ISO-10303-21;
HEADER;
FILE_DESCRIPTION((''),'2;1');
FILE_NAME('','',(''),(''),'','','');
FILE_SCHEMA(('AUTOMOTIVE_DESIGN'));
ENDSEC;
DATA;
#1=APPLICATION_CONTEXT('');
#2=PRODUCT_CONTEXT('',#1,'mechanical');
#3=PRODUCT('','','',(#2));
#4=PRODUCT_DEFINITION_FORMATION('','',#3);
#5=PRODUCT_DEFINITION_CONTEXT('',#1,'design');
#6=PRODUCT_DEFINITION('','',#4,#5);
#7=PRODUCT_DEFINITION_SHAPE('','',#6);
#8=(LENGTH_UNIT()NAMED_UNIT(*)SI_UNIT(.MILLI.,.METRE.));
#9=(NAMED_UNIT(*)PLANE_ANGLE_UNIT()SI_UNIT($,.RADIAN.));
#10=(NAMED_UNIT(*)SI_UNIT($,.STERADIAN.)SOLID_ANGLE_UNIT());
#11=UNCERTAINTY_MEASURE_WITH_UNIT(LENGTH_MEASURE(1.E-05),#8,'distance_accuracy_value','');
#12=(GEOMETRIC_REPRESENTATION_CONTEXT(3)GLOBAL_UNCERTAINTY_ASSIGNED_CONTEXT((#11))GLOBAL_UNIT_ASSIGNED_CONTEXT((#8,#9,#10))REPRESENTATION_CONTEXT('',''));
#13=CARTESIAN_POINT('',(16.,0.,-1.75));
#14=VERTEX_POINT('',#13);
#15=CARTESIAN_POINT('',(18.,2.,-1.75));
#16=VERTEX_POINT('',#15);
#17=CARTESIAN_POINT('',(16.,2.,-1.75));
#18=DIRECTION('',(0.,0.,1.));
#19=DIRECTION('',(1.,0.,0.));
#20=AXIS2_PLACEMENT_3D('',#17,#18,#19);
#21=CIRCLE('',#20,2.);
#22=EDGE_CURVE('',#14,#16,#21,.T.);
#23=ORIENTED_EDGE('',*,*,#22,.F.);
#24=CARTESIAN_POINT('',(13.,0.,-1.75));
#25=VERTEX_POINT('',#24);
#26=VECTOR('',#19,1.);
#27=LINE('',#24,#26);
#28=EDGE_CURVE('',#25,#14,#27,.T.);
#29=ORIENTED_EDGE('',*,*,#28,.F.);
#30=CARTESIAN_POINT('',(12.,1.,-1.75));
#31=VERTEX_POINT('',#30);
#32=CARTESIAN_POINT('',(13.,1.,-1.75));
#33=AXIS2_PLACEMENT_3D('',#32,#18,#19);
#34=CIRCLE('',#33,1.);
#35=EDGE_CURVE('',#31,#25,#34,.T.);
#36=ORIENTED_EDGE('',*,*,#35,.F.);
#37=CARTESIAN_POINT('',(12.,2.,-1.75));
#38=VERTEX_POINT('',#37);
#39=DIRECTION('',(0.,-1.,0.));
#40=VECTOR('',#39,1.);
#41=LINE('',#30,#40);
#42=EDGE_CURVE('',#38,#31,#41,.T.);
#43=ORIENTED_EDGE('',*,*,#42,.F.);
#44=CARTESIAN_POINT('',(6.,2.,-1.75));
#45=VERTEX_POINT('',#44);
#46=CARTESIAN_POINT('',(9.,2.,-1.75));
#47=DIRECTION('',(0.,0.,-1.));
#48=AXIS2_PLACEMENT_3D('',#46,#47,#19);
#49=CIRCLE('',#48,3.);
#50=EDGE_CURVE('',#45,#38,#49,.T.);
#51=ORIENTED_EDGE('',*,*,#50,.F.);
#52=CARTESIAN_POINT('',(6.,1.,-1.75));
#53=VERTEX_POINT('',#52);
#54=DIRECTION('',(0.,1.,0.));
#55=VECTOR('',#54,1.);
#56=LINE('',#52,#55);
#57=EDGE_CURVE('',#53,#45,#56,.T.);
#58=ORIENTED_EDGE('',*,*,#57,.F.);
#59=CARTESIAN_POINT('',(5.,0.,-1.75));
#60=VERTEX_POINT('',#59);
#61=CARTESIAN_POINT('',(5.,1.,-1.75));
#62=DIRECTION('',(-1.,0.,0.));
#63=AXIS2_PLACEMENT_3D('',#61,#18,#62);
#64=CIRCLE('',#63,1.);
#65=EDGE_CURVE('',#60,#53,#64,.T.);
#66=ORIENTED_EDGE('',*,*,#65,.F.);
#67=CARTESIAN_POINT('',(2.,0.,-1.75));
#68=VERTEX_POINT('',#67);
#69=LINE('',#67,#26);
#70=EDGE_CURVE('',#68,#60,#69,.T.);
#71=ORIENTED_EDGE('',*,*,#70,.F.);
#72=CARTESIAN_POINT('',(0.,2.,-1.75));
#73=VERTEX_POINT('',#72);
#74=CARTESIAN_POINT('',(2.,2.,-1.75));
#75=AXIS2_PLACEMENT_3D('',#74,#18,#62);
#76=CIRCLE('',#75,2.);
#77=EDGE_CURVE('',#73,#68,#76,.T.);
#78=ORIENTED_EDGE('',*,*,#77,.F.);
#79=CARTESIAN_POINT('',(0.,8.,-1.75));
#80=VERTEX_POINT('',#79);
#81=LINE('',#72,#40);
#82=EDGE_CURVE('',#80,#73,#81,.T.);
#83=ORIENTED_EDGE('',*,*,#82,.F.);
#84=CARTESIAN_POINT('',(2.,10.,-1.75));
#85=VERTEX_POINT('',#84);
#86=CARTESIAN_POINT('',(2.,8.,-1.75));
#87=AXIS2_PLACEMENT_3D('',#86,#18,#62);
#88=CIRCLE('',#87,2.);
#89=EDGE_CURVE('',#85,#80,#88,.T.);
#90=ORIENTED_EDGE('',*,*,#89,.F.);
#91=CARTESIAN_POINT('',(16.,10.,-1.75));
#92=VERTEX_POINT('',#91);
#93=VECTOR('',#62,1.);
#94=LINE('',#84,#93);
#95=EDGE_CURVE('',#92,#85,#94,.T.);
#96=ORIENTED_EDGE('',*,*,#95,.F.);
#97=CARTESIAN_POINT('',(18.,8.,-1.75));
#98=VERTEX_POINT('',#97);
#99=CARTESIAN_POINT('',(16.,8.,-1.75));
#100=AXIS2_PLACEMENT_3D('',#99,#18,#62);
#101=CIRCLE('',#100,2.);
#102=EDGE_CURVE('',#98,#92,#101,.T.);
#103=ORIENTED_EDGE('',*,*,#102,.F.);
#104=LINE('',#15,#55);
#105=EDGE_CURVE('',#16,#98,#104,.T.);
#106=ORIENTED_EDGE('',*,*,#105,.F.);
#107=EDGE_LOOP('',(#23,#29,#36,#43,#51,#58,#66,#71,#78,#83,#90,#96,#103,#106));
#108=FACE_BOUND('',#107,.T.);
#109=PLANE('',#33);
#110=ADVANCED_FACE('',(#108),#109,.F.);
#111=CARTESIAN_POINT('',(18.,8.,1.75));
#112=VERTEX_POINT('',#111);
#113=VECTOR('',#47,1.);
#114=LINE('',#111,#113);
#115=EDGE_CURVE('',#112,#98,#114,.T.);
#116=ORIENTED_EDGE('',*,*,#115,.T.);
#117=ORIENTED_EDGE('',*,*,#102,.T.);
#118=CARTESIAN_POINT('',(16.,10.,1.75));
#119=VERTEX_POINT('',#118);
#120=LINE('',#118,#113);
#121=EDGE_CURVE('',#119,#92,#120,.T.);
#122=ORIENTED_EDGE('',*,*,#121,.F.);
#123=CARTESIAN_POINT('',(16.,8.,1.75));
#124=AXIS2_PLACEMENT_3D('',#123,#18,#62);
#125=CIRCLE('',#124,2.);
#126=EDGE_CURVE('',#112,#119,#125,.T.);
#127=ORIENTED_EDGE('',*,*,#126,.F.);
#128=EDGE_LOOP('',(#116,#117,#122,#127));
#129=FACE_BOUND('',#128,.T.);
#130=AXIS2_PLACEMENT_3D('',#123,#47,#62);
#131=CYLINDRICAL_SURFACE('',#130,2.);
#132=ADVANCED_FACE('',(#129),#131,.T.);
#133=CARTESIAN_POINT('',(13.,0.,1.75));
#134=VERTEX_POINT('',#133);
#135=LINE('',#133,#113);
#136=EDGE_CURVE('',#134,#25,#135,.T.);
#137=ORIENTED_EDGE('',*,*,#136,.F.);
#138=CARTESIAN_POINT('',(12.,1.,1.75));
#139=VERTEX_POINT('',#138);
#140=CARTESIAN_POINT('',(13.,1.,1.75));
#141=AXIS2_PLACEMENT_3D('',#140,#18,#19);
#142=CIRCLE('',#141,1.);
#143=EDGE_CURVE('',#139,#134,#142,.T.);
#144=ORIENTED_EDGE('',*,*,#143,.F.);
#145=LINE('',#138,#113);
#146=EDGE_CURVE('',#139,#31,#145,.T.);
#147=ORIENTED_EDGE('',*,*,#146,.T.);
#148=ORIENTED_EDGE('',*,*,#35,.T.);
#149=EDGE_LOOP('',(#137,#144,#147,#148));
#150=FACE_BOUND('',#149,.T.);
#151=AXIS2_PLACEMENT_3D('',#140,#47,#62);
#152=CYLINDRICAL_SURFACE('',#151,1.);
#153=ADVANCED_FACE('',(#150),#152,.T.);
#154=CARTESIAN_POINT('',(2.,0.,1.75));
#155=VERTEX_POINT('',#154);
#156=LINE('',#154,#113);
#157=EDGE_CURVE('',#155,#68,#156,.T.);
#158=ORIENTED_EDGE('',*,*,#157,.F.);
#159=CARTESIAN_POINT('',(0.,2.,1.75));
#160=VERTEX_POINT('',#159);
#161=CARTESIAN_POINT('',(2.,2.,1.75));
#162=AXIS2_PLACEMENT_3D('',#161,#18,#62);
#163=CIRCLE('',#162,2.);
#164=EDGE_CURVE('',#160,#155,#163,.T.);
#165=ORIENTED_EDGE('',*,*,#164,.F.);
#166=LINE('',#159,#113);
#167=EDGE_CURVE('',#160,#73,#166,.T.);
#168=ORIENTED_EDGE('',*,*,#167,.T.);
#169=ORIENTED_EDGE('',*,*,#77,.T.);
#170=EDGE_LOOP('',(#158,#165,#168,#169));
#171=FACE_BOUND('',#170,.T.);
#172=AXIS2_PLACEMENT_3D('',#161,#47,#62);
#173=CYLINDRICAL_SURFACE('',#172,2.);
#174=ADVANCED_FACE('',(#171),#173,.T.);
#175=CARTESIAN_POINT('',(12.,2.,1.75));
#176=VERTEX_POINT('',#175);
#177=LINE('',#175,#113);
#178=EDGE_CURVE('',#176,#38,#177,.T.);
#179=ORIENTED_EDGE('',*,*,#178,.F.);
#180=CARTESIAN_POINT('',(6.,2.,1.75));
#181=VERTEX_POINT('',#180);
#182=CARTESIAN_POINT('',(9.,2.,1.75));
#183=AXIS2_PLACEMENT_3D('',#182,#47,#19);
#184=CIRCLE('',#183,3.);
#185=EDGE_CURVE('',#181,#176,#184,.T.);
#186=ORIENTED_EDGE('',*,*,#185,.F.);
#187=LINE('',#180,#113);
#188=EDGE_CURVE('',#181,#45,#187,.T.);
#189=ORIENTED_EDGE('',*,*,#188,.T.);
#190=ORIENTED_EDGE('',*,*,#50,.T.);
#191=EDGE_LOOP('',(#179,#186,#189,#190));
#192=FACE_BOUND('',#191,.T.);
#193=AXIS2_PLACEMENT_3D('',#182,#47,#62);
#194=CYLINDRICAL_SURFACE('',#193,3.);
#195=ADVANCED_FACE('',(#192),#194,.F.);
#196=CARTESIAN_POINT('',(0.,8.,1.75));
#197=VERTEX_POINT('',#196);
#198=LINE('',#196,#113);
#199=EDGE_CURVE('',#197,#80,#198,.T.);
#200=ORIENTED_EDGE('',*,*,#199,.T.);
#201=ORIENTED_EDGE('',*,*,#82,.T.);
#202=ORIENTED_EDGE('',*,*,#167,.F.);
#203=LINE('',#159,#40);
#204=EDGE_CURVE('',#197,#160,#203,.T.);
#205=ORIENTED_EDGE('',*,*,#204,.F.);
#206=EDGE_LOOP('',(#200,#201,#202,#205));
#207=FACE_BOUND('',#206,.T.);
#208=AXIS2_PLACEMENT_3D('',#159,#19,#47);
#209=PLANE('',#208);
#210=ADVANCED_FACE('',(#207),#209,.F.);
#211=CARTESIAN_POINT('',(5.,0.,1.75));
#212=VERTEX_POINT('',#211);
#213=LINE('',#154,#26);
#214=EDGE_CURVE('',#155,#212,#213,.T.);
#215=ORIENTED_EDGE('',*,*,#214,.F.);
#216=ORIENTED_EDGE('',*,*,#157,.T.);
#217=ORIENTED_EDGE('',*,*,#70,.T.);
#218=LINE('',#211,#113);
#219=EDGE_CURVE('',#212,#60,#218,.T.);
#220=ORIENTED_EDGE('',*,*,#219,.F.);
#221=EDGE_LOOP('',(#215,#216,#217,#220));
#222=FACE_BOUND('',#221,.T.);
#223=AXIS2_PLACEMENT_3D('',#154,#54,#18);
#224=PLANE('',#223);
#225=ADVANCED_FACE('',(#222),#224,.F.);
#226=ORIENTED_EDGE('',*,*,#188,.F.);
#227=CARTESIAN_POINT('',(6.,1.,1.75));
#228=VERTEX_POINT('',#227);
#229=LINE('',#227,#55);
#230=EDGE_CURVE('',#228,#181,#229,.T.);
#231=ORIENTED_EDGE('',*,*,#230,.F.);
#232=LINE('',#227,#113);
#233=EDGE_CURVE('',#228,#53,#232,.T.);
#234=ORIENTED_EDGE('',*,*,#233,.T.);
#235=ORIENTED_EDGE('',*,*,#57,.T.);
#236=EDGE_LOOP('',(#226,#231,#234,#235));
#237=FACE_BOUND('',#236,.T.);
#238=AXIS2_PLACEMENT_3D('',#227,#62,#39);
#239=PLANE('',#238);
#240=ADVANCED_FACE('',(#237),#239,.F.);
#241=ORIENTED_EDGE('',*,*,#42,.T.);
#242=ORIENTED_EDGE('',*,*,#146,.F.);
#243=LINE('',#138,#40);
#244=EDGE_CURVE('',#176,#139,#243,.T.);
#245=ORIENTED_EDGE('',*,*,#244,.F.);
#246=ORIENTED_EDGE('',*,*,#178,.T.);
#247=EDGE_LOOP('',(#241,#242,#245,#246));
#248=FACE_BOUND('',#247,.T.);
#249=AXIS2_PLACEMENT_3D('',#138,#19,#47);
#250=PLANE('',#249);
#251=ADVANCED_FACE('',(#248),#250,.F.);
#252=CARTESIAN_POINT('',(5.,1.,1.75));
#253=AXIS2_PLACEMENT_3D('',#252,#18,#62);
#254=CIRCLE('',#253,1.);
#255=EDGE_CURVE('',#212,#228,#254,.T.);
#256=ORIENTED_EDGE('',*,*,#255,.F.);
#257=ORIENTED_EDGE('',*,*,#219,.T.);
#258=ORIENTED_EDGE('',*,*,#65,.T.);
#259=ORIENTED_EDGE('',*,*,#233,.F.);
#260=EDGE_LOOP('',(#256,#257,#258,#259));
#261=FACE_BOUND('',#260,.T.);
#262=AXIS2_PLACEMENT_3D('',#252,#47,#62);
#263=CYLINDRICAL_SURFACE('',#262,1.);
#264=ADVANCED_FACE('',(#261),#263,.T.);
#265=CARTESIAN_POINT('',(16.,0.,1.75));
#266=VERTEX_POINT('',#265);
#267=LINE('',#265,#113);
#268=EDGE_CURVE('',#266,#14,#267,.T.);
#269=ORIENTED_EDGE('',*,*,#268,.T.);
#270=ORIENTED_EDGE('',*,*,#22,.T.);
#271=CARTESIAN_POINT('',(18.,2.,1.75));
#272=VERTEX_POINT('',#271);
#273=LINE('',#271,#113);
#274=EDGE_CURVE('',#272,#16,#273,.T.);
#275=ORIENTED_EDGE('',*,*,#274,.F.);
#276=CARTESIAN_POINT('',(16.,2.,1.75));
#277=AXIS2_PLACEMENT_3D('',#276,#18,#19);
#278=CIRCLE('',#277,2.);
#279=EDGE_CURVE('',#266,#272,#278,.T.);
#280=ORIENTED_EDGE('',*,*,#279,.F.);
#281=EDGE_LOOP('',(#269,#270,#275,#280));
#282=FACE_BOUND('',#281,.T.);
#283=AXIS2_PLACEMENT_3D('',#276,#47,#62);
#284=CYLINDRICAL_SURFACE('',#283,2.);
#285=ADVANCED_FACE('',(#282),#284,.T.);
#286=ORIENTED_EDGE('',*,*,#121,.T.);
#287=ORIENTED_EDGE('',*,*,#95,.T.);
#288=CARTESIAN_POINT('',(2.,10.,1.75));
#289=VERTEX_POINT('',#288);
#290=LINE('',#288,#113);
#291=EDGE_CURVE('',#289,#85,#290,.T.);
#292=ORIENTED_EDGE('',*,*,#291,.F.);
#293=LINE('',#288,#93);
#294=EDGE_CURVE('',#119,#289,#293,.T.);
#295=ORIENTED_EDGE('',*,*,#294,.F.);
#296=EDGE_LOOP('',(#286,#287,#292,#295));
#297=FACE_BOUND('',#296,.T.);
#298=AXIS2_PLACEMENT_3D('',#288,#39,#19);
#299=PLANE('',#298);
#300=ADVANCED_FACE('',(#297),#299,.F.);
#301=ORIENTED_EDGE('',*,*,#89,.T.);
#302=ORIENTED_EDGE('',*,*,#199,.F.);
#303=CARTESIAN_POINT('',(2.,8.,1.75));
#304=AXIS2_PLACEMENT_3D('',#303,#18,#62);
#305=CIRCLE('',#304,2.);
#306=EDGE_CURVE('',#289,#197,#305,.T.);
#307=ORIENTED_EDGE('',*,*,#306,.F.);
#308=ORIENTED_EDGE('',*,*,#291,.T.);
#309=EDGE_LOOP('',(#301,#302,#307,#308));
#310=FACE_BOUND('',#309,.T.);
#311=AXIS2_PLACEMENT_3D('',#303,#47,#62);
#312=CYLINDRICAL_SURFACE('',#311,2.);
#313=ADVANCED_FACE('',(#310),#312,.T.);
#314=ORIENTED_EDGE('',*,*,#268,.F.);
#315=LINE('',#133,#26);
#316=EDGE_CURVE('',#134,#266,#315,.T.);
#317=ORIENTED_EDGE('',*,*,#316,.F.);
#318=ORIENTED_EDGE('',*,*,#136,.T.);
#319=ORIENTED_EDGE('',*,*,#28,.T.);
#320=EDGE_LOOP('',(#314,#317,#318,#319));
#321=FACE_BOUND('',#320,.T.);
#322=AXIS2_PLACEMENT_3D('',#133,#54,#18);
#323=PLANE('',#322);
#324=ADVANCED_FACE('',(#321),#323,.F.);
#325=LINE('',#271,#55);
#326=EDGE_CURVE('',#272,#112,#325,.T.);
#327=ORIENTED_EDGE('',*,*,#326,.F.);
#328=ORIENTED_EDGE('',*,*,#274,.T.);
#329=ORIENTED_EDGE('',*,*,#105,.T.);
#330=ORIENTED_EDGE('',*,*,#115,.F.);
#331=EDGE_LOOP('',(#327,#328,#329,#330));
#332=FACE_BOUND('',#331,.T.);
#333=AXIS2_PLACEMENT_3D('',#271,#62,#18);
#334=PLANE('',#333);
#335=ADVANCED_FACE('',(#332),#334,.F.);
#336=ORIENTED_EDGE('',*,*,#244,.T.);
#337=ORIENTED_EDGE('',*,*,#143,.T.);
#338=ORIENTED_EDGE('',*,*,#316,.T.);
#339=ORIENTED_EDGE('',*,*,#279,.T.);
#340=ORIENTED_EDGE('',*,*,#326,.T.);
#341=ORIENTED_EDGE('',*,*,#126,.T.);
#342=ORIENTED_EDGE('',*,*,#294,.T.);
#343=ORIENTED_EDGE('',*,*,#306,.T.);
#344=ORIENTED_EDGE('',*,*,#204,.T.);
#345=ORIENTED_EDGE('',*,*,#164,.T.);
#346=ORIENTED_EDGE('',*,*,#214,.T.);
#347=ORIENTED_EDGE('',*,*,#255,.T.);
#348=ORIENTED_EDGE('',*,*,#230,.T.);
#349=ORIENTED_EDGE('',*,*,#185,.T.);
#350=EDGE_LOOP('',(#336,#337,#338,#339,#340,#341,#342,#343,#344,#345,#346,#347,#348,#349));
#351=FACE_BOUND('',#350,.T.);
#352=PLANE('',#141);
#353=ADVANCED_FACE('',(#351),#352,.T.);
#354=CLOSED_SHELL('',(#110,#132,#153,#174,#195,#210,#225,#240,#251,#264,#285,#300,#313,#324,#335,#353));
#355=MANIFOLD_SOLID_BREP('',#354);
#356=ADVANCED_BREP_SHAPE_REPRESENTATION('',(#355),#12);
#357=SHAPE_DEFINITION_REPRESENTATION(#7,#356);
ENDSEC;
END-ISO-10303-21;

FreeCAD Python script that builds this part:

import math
import FreeCAD as App
import Part
import Sketcher

V = App.Vector
Q = App.Units.Quantity

doc = App.newDocument("Part")
params = doc.addObject("Spreadsheet::Sheet", "Params")
for row, (alias, value) in enumerate([
    ("sketch1_radius", "1 mm"),
    ("sketch1_radius2", "3 mm"),
    ("sketch1_radius3", "2 mm"),
    ("sketch1_width", "3 mm"),
    ("sketch1_height", "6 mm"),
    ("pad1_length", "3.5 mm"),
], start=1):
    params.set(f"A{row}", alias)
    params.set(f"B{row}", "=" + value)
    params.setAlias(f"B{row}", alias)

body = doc.addObject("PartDesign::Body", "Body")

sketch1 = body.newObject("Sketcher::SketchObject", "Sketch")
sketch1.AttachmentSupport = (doc.getObject("XY_Plane"), [""])
sketch1.MapMode = "FlatFace"
sketch1.addGeometry([
    Part.LineSegment(V(2, 0, 0), V(5, 0, 0)),
    Part.ArcOfCircle(Part.Circle(V(5, 1, 0), V(0, 0, 1), 1), math.radians(-90), math.radians(0)),
    Part.LineSegment(V(6, 1, 0), V(6, 2, 0)),
    Part.ArcOfCircle(Part.Circle(V(9, 2, 0), V(0, 0, 1), 3), math.radians(0), math.radians(180)),
    Part.LineSegment(V(12, 2, 0), V(12, 1, 0)),
    Part.ArcOfCircle(Part.Circle(V(13, 1, 0), V(0, 0, 1), 1), math.radians(-180), math.radians(-90)),
    Part.LineSegment(V(13, 0, 0), V(16, 0, 0)),
    Part.ArcOfCircle(Part.Circle(V(16, 2, 0), V(0, 0, 1), 2), math.radians(-90), math.radians(0)),
    Part.LineSegment(V(18, 2, 0), V(18, 8, 0)),
    Part.ArcOfCircle(Part.Circle(V(16, 8, 0), V(0, 0, 1), 2), math.radians(0), math.radians(90)),
    Part.LineSegment(V(16, 10, 0), V(2, 10, 0)),
    Part.ArcOfCircle(Part.Circle(V(2, 8, 0), V(0, 0, 1), 2), math.radians(90), math.radians(180)),
    Part.LineSegment(V(0, 8, 0), V(0, 2, 0)),
    Part.ArcOfCircle(Part.Circle(V(2, 2, 0), V(0, 0, 1), 2), math.radians(-180), math.radians(-90)),
], False)
sketch1.addConstraint([
    Sketcher.Constraint("Tangent", 0, 2, 1, 1),
    Sketcher.Constraint("Tangent", 1, 2, 2, 1),
    Sketcher.Constraint("Tangent", 2, 2, 3, 2),
    Sketcher.Constraint("Tangent", 3, 1, 4, 1),
    Sketcher.Constraint("Tangent", 4, 2, 5, 1),
    Sketcher.Constraint("Tangent", 5, 2, 6, 1),
    Sketcher.Constraint("Tangent", 6, 2, 7, 1),
    Sketcher.Constraint("Tangent", 7, 2, 8, 1),
    Sketcher.Constraint("Tangent", 8, 2, 9, 1),
    Sketcher.Constraint("Tangent", 9, 2, 10, 1),
    Sketcher.Constraint("Tangent", 10, 2, 11, 1),
    Sketcher.Constraint("Tangent", 11, 2, 12, 1),
    Sketcher.Constraint("Tangent", 12, 2, 13, 1),
    Sketcher.Constraint("Tangent", 13, 2, 0, 1),
    Sketcher.Constraint("Horizontal", 0),
    Sketcher.Constraint("Vertical", 2),
    Sketcher.Constraint("Vertical", 4),
    Sketcher.Constraint("Horizontal", 6),
    Sketcher.Constraint("Vertical", 8),
    Sketcher.Constraint("Horizontal", 10),
    Sketcher.Constraint("Vertical", 12),
    Sketcher.Constraint("Equal", 1, 5),
    Sketcher.Constraint("Equal", 7, 9),
    Sketcher.Constraint("Equal", 9, 11),
    Sketcher.Constraint("Equal", 11, 13),
    Sketcher.Constraint("PointOnObject", 0, 2, -1),
    Sketcher.Constraint("PointOnObject", 5, 2, -1),
    Sketcher.Constraint("PointOnObject", 11, 2, -2),
    Sketcher.Constraint("Horizontal", 3, 3, 7, 3),
    Sketcher.Constraint("Equal", 0, 6),
    Sketcher.Constraint("Radius", 1, Q("1 mm")),
    Sketcher.Constraint("Radius", 3, Q("3 mm")),
    Sketcher.Constraint("Radius", 7, Q("2 mm")),
    Sketcher.Constraint("DistanceX", 0, 1, 0, 2, Q("3 mm")),
    Sketcher.Constraint("DistanceY", 8, 1, 8, 2, Q("6 mm")),
])
sketch1.setExpression("Constraints[30]", "Params.sketch1_radius")
sketch1.setExpression("Constraints[31]", "Params.sketch1_radius2")
sketch1.setExpression("Constraints[32]", "Params.sketch1_radius3")
sketch1.setExpression("Constraints[33]", "Params.sketch1_width")
sketch1.setExpression("Constraints[34]", "Params.sketch1_height")
pad1 = body.newObject("PartDesign::Pad", "Pad")
pad1.Profile = sketch1
pad1.setExpression("Length", "Params.pad1_length")
pad1.Midplane = True

doc.recompute()
